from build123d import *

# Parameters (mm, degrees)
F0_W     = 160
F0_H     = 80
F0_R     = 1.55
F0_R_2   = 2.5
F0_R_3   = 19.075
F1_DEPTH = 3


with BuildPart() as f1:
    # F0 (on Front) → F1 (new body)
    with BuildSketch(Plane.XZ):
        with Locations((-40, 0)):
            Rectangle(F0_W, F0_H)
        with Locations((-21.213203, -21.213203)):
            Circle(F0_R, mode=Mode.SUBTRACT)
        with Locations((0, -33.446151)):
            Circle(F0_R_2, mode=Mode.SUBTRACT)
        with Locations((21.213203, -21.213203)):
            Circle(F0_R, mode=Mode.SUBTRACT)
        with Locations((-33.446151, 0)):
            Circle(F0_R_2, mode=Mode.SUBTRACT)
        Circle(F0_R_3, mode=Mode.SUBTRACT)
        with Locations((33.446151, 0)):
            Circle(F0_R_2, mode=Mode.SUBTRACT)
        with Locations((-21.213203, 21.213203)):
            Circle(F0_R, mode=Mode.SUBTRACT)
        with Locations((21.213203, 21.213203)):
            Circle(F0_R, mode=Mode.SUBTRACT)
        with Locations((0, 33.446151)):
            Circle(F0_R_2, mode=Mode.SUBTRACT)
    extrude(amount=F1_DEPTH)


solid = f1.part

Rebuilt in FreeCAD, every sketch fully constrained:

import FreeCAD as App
import Part
import Sketcher

V = App.Vector
Q = App.Units.Quantity

doc = App.newDocument("Part")
body = doc.addObject("PartDesign::Body", "Body")

sketch1 = body.newObject("Sketcher::SketchObject", "Sketch")
sketch1.AttachmentSupport = (doc.getObject("XZ_Plane"), [""])
sketch1.MapMode = "FlatFace"
sketch1.addGeometry([
    Part.LineSegment(V(-120, 40, 0), V(-120, -40, 0)),
    Part.LineSegment(V(-120, -40, 0), V(40, -40, 0)),
    Part.LineSegment(V(40, -40, 0), V(40, 40, 0)),
    Part.LineSegment(V(40, 40, 0), V(-120, 40, 0)),
    Part.Circle(V(-21.2, -21.2, 0), V(0, 0, 1), 1.6),
    Part.Circle(V(0, -33.4, 0), V(0, 0, 1), 2.5),
    Part.Circle(V(-33.4, 0, 0), V(0, 0, 1), 2.5),
    Part.Circle(V(0, 0, 0), V(0, 0, 1), 19.1),
    Part.Circle(V(21.2, -21.2, 0), V(0, 0, 1), 1.6),
    Part.Circle(V(33.4, 0, 0), V(0, 0, 1), 2.5),
    Part.Circle(V(-21.2, 21.2, 0), V(0, 0, 1), 1.6),
    Part.Circle(V(0, 33.4, 0), V(0, 0, 1), 2.5),
    Part.Circle(V(21.2, 21.2, 0), V(0, 0, 1), 1.6),
], False)
sketch1.addConstraint([
    Sketcher.Constraint("Coincident", 0, 2, 1, 1),
    Sketcher.Constraint("Coincident", 1, 2, 2, 1),
    Sketcher.Constraint("Coincident", 2, 2, 3, 1),
    Sketcher.Constraint("Coincident", 3, 2, 0, 1),
    Sketcher.Constraint("Vertical", 0),
    Sketcher.Constraint("Horizontal", 1),
    Sketcher.Constraint("Vertical", 2),
    Sketcher.Constraint("Horizontal", 3),
    Sketcher.Constraint("Coincident", 7, 3, -1, 1),
    Sketcher.Constraint("Equal", 5, 6),
    Sketcher.Constraint("Equal", 4, 8),
    Sketcher.Constraint("Equal", 6, 9),
    Sketcher.Constraint("Equal", 8, 10),
    Sketcher.Constraint("Equal", 9, 11),
    Sketcher.Constraint("Equal", 10, 12),
    Sketcher.Constraint("Symmetric", 6, 3, 9, 3, -1, 1),
    Sketcher.Constraint("Symmetric", 8, 3, 10, 3, -1, 1),
    Sketcher.Constraint("Symmetric", 5, 3, 11, 3, -1, 1),
    Sketcher.Constraint("Symmetric", 4, 3, 12, 3, -1, 1),
    Sketcher.Constraint("Symmetric", 4, 3, 8, 3, -2),
    Sketcher.Constraint("PointOnObject", 5, 3, -2),
    Sketcher.Constraint("PointOnObject", 6, 3, -1),
    Sketcher.Constraint("Diameter", 5, Q("5 mm")),
    Sketcher.Constraint("Diameter", 4, Q("3.1 mm")),
    Sketcher.Constraint("Diameter", 7, Q("38.15 mm")),
    Sketcher.Constraint("DistanceX", 1, 1, 1, 2, Q("160 mm")),
    Sketcher.Constraint("DistanceY", 0, 2, 0, 1, Q("80 mm")),
    Sketcher.Constraint("DistanceX", 0, 2, -1, 1, Q("120 mm")),
    Sketcher.Constraint("DistanceY", 0, 2, -1, 1, Q("40 mm")),
    Sketcher.Constraint("DistanceX", 6, 3, 9, 3, Q("66.892302 mm")),
    Sketcher.Constraint("DistanceY", 5, 3, -1, 1, Q("33.446151 mm")),
    Sketcher.Constraint("DistanceX", 4, 3, -1, 1, Q("21.213203 mm")),
    Sketcher.Constraint("DistanceY", 4, 3, -1, 1, Q("21.213203 mm")),
])
pad1 = body.newObject("PartDesign::Pad", "Pad")
pad1.Profile = sketch1
pad1.Length = 3

doc.recompute()
